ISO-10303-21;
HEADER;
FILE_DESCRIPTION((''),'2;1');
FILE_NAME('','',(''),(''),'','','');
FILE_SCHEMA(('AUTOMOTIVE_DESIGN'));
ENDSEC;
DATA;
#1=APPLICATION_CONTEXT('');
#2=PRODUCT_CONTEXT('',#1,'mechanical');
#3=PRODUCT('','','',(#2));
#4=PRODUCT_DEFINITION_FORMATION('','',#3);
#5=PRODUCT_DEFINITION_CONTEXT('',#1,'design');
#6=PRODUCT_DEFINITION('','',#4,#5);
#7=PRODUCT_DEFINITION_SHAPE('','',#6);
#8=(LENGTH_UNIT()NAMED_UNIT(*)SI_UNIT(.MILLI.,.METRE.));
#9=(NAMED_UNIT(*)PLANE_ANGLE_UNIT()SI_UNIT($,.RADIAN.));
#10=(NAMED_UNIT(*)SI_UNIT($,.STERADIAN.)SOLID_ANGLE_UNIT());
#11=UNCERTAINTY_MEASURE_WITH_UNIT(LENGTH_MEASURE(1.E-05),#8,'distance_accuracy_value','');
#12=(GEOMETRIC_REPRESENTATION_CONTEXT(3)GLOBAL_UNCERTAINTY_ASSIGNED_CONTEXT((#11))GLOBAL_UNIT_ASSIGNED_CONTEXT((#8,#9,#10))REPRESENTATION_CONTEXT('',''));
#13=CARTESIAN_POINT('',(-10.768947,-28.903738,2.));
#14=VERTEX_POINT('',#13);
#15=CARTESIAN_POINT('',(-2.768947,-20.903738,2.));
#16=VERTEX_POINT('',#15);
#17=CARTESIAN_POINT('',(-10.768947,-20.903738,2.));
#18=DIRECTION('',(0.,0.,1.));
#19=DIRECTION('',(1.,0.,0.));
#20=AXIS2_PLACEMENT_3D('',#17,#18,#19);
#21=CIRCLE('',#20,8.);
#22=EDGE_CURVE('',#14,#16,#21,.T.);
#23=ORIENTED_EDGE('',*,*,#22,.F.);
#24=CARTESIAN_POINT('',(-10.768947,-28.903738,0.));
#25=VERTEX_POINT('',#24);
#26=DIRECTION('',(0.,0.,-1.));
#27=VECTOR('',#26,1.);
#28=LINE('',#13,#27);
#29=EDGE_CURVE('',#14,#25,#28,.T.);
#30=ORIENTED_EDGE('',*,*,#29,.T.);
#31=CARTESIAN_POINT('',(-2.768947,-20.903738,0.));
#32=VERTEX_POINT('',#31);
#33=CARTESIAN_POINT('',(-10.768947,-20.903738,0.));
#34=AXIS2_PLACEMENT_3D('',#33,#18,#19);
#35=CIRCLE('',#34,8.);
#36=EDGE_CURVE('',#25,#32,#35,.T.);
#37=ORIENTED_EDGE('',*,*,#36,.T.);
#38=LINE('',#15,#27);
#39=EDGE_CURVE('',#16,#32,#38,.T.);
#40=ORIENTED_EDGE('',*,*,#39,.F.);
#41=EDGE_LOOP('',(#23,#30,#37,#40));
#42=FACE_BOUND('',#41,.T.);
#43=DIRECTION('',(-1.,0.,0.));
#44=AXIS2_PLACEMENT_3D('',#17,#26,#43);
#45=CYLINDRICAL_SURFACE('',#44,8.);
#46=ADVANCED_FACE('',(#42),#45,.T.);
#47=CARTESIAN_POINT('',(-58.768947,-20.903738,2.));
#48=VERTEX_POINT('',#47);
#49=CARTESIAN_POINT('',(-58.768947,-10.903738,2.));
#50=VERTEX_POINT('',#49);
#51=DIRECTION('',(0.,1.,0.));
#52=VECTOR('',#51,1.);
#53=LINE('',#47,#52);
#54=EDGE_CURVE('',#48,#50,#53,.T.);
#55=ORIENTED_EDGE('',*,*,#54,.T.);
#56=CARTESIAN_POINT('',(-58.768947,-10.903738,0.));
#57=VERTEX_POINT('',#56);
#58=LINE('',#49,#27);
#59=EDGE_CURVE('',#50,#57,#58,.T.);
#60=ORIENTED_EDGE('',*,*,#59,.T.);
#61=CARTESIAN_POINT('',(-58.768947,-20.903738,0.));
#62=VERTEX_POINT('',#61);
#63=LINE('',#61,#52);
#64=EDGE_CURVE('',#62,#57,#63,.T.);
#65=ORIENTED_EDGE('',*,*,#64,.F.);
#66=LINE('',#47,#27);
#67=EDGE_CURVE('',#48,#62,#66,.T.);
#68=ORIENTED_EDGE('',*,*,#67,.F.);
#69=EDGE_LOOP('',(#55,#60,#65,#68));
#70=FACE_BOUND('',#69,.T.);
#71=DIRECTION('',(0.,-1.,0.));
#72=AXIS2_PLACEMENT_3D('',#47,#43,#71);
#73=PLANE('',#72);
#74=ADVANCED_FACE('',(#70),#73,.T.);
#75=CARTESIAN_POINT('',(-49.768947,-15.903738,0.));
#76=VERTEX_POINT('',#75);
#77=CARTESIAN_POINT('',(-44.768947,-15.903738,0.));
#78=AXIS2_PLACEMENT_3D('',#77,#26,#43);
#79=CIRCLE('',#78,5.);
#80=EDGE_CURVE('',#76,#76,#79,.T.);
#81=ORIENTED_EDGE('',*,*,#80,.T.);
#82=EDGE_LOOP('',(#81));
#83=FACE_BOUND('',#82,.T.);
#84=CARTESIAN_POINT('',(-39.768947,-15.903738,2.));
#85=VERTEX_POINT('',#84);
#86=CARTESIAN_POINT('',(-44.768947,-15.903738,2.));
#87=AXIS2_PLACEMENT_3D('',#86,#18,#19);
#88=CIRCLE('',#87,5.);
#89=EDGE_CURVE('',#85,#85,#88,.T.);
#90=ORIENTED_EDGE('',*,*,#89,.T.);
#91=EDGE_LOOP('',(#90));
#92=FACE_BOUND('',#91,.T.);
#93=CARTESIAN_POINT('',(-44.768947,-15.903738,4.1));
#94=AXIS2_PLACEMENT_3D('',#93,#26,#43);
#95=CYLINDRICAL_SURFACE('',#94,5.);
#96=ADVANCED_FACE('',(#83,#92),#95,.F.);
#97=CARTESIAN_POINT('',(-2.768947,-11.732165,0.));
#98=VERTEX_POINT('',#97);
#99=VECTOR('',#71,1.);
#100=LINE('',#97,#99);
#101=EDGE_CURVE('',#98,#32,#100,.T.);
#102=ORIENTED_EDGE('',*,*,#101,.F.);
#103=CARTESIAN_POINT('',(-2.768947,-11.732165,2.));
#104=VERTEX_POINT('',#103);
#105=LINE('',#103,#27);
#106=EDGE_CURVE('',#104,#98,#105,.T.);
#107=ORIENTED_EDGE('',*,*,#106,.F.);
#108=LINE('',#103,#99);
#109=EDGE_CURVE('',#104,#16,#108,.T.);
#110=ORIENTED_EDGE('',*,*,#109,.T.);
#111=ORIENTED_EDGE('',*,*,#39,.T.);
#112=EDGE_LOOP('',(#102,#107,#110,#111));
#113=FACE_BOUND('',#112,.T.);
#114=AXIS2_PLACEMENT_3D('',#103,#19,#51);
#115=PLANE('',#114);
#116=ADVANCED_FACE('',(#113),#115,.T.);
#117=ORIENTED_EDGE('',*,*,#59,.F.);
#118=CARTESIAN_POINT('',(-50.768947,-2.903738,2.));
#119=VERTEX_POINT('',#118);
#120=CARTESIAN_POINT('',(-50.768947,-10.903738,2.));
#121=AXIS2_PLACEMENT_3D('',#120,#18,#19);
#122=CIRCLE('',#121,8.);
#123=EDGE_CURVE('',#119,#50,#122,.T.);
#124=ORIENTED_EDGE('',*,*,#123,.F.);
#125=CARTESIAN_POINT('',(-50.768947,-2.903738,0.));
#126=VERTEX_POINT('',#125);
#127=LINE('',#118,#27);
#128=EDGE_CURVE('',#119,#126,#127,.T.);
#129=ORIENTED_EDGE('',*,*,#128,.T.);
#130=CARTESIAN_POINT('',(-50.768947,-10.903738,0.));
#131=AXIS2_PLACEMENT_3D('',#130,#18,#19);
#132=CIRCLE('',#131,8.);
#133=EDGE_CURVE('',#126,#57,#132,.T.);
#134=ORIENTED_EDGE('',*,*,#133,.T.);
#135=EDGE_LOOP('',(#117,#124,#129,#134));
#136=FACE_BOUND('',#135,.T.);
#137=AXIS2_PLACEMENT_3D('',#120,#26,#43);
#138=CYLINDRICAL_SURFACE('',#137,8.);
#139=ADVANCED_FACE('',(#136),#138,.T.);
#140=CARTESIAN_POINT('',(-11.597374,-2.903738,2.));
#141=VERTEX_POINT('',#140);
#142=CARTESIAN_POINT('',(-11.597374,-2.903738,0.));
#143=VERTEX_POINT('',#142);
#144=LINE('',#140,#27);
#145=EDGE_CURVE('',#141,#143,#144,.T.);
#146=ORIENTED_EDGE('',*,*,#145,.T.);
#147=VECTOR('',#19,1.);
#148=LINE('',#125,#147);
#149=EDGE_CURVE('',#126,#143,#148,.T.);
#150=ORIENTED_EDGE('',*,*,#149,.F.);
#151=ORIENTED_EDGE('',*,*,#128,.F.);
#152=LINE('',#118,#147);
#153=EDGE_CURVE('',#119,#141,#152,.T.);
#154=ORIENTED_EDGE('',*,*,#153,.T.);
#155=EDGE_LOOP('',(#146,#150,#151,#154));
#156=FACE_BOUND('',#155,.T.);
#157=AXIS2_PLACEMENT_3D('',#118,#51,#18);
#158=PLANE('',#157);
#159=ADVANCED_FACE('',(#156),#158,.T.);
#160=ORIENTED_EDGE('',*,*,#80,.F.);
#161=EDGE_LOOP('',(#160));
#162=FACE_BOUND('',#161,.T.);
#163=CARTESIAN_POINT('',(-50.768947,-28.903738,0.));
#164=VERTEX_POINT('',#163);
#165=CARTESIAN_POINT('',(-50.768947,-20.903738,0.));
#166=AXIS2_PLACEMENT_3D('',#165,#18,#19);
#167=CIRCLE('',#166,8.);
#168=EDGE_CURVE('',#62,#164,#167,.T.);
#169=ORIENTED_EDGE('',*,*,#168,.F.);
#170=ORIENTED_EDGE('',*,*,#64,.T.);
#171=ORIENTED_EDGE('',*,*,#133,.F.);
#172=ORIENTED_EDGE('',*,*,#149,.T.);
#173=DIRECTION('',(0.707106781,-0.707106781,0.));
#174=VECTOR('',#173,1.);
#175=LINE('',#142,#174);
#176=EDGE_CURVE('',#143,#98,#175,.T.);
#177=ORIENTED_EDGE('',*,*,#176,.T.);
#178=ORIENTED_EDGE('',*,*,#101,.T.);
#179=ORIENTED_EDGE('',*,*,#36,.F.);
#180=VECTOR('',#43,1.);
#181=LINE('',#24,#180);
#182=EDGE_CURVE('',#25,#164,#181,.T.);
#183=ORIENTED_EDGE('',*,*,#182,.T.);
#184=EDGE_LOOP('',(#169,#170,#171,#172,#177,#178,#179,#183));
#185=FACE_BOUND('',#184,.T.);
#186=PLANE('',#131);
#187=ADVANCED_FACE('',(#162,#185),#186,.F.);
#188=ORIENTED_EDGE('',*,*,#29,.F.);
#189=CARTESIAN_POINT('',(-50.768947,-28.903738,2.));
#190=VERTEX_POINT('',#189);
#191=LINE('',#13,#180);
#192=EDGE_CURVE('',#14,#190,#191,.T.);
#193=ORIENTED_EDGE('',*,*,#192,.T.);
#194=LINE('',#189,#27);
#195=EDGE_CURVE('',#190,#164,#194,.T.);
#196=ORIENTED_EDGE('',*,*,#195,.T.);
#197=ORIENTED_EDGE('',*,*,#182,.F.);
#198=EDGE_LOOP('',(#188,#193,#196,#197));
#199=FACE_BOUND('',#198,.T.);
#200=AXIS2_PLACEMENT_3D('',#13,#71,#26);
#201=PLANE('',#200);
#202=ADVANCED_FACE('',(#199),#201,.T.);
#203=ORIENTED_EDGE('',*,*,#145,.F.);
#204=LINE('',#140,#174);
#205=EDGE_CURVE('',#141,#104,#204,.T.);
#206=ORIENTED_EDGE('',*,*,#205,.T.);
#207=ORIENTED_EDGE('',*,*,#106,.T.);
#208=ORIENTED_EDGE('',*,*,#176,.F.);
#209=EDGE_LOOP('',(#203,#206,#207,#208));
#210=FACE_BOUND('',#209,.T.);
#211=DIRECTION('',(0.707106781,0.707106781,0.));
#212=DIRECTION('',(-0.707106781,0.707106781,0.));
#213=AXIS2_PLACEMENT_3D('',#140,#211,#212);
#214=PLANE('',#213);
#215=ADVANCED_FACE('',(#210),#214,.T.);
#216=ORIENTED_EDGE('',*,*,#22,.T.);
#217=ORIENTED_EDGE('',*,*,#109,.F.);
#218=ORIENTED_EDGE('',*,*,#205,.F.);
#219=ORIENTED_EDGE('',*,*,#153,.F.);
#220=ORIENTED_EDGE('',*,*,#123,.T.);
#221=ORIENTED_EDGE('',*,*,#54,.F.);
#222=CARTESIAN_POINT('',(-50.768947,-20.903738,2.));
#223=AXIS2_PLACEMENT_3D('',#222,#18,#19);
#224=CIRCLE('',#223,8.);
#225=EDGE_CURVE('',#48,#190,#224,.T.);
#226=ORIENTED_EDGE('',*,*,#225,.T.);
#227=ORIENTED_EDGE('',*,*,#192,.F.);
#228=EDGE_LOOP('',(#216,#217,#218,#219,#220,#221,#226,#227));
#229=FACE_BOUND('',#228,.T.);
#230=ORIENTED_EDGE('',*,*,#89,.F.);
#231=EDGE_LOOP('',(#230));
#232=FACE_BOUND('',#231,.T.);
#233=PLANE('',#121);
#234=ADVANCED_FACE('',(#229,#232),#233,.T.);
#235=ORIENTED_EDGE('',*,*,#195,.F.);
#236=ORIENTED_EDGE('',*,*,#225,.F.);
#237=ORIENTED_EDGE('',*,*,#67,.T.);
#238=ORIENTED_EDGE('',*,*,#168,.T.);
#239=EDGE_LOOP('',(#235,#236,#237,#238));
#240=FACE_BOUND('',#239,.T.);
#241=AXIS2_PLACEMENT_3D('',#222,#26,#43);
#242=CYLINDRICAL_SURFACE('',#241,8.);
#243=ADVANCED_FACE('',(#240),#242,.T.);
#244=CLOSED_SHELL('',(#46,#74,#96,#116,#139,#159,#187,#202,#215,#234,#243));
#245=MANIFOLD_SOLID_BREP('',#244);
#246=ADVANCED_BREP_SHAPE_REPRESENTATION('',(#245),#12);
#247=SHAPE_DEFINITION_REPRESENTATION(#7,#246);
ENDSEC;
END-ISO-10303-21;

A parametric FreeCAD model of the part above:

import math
import FreeCAD as App
import Part
import Sketcher
Q = App.Units.Quantity

doc = App.newDocument("Part")
body = doc.addObject("PartDesign::Body", "Body")

sketch1 = doc.addObject("Sketcher::SketchObject", "Sketch")
body.addObject(sketch1)
sketch1.AttachmentSupport = (doc.XY_Plane, [""])
sketch1.MapMode = "FlatFace"
sketch1.addGeometry([
    Part.LineSegment(App.Vector(-11.597374, -2.903738, 0), App.Vector(-50.768947, -2.903738, 0)),
    Part.ArcOfCircle(Part.Circle(App.Vector(-50.768947, -10.903738, 0), App.Vector(0, 0, 1), 8), math.radians(90), math.radians(180)),
    Part.LineSegment(App.Vector(-58.768947, -10.903738, 0), App.Vector(-58.768947, -20.903738, 0)),
    Part.ArcOfCircle(Part.Circle(App.Vector(-50.768947, -20.903738, 0), App.Vector(0, 0, 1), 8), math.radians(180), math.radians(270)),
    Part.LineSegment(App.Vector(-50.768947, -28.903738, 0), App.Vector(-10.768947, -28.903738, 0)),
    Part.ArcOfCircle(Part.Circle(App.Vector(-10.768947, -20.903738, 0), App.Vector(0, 0, 1), 8), math.radians(-90), math.radians(0)),
    Part.LineSegment(App.Vector(-2.768947, -20.903738, 0), App.Vector(-2.768947, -11.732165, 0)),
    Part.LineSegment(App.Vector(-2.768947, -11.732165, 0), App.Vector(-11.597374, -2.903738, 0)),
], False)
sketch1.addConstraint([
    Sketcher.Constraint("Tangent", 0, 2, 1, 1),
    Sketcher.Constraint("Tangent", 1, 2, 2, 1),
    Sketcher.Constraint("Tangent", 2, 2, 3, 1),
    Sketcher.Constraint("Tangent", 3, 2, 4, 1),
    Sketcher.Constraint("Tangent", 4, 2, 5, 1),
    Sketcher.Constraint("Tangent", 5, 2, 6, 1),
    Sketcher.Constraint("Coincident", 6, 2, 7, 1),
    Sketcher.Constraint("Coincident", 7, 2, 0, 1),
    Sketcher.Constraint("Horizontal", 0),
    Sketcher.Constraint("Vertical", 2),
    Sketcher.Constraint("Horizontal", 4),
    Sketcher.Constraint("Vertical", 6),
    Sketcher.Constraint("Equal", 1, 3),
    Sketcher.Constraint("Equal", 3, 5),
    Sketcher.Constraint("Radius", 1, 8.0),
    Sketcher.Constraint("DistanceX", 4, 1, 4, 2, 40.0),
    Sketcher.Constraint("DistanceY", 2, 2, 2, 1, 10.0),
    Sketcher.Constraint("Angle", 7, Q("135 deg")),
    Sketcher.Constraint("Distance", 7, 12.485281),
    Sketcher.Constraint("DistanceX", 1, 3, -1, 1, 50.768947),
    Sketcher.Constraint("DistanceY", 1, 3, -1, 1, 10.903738),
])
pad1 = doc.addObject("PartDesign::Pad", "Pad")
body.addObject(pad1)
pad1.Profile = sketch1
pad1.Length = 2

sketch2 = doc.addObject("Sketcher::SketchObject", "Sketch001")
body.addObject(sketch2)
sketch2.AttachmentSupport = (doc.XY_Plane, [""])
sketch2.MapMode = "FlatFace"
sketch2.addGeometry(Part.Circle(App.Vector(-44.768947, -15.903738, 0), App.Vector(0, 0, 1), 5), False)
sketch2.addConstraint([
    Sketcher.Constraint("Diameter", 0, 10.0),
    Sketcher.Constraint("DistanceX", 0, 3, -1, 1, 44.768947),
    Sketcher.Constraint("DistanceY", 0, 3, -1, 1, 15.903738),
])
pocket1 = doc.addObject("PartDesign::Pocket", "Pocket")
body.addObject(pocket1)
pocket1.Profile = sketch2
pocket1.Length = 4.1
pocket1.Reversed = True

doc.recompute()
